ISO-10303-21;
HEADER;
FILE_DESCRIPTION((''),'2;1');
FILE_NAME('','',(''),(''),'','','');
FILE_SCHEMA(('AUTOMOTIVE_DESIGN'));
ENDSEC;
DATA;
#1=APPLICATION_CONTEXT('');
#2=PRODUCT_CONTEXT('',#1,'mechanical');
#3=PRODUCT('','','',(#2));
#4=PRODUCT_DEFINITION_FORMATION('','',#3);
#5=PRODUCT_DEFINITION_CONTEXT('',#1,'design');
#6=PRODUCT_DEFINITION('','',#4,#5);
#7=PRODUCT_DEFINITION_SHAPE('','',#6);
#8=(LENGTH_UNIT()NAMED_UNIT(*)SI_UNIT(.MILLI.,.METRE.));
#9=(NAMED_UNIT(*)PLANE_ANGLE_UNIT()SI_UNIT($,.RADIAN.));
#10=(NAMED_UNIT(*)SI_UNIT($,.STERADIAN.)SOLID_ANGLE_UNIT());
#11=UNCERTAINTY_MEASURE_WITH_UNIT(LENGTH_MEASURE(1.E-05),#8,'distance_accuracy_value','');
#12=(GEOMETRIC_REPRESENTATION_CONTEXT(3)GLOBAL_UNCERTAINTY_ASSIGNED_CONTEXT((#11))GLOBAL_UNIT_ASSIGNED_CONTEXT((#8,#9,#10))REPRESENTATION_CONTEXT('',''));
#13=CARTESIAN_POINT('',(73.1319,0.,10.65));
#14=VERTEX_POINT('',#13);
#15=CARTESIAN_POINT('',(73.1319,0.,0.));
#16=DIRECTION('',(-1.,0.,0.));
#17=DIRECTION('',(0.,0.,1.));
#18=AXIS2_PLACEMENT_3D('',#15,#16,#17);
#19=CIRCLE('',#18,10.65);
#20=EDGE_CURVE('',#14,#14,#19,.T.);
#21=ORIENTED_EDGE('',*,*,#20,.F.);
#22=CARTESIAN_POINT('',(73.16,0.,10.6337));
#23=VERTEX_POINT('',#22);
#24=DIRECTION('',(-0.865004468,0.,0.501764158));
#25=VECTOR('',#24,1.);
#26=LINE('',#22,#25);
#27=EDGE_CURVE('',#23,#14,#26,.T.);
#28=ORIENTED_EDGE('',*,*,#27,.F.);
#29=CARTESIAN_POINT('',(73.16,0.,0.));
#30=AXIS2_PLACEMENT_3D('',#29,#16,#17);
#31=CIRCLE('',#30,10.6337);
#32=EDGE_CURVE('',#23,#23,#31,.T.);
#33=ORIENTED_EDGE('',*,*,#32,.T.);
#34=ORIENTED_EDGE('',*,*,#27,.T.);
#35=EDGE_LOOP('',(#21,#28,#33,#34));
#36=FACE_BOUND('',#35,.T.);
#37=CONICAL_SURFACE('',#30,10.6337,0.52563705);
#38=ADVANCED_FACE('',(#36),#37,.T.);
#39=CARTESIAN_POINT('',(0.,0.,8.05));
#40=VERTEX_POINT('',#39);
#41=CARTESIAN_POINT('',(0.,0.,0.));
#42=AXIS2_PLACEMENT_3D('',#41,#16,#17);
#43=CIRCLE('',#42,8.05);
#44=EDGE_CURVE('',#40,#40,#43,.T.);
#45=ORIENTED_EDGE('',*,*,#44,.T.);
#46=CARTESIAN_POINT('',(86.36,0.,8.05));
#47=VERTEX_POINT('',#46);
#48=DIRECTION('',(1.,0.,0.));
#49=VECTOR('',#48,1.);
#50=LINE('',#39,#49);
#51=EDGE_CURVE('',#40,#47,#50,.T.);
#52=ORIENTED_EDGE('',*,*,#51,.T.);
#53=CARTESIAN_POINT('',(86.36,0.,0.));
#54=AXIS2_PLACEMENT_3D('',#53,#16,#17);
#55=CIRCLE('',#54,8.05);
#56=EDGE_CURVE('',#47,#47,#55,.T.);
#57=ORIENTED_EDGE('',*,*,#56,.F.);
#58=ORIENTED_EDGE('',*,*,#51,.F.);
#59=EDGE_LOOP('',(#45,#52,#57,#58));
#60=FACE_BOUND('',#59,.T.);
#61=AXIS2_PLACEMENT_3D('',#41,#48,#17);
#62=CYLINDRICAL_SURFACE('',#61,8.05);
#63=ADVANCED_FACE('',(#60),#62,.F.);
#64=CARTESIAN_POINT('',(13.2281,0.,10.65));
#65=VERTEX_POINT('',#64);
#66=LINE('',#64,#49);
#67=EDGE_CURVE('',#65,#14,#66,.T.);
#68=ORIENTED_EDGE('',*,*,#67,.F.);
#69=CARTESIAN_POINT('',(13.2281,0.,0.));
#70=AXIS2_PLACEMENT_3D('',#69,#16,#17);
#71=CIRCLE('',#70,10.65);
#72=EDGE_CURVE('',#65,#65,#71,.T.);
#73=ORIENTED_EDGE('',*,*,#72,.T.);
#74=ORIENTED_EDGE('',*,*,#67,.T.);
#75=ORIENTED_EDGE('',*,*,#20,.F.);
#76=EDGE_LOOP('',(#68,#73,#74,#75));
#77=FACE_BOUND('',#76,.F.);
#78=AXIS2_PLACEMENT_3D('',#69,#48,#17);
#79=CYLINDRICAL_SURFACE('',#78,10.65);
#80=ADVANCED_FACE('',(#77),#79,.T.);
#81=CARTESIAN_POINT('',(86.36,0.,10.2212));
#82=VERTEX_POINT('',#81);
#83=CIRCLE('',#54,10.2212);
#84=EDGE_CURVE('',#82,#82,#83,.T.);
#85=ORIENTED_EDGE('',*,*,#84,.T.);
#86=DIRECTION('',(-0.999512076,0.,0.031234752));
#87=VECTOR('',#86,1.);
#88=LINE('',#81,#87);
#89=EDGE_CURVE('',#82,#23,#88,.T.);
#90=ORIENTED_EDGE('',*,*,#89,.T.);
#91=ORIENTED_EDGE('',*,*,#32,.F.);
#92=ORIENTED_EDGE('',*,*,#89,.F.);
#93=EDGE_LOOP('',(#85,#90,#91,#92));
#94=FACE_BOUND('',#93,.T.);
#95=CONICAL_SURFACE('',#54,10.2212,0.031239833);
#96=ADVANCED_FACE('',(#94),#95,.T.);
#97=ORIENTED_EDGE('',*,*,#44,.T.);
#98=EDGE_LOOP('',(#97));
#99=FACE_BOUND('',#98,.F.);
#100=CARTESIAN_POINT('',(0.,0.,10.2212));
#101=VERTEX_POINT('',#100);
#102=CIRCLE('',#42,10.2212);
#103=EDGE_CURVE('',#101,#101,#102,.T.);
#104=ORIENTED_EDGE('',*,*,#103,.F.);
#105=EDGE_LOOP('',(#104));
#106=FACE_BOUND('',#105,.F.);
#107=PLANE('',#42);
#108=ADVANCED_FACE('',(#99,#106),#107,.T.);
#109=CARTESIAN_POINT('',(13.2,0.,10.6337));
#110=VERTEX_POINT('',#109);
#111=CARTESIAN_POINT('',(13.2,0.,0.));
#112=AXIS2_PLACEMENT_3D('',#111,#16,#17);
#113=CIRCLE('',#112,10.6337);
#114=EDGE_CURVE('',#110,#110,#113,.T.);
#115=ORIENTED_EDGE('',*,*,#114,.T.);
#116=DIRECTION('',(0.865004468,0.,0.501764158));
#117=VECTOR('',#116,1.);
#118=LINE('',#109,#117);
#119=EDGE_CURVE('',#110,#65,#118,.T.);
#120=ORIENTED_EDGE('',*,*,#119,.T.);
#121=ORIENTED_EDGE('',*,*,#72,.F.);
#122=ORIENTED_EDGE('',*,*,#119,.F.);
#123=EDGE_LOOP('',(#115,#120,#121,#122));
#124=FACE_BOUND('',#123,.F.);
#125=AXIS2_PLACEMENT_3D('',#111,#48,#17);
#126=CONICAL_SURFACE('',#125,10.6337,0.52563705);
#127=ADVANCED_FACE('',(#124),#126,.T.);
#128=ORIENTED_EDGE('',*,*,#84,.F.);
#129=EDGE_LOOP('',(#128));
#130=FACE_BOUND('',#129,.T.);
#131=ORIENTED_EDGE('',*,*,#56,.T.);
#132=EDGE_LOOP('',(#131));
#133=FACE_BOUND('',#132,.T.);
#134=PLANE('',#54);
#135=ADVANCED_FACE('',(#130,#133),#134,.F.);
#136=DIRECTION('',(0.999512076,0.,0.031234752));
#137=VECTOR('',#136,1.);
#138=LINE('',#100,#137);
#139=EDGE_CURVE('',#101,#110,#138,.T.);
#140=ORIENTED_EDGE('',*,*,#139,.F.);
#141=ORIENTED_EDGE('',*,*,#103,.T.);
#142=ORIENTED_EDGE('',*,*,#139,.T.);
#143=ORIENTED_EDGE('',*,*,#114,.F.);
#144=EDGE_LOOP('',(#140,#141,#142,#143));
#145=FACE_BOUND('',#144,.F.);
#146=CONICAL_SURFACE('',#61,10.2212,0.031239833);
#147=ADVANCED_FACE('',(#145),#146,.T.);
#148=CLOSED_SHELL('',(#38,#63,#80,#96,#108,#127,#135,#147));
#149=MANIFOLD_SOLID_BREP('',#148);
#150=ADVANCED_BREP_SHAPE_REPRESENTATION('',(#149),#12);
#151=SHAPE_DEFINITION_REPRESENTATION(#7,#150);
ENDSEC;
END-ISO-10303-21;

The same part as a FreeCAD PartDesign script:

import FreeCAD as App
import Part
import Sketcher

V = App.Vector
Q = App.Units.Quantity

doc = App.newDocument("Part")
body = doc.addObject("PartDesign::Body", "Body")

sketch1 = body.newObject("Sketcher::SketchObject", "Sketch")
sketch1.AttachmentSupport = (doc.getObject("XZ_Plane"), [""])
sketch1.MapMode = "FlatFace"
sketch1.addGeometry([
    Part.LineSegment(V(86.36, 8.05, 0), V(0, 8.05, 0)),
    Part.LineSegment(V(0, 8.05, 0), V(0, 10.221, 0)),
    Part.LineSegment(V(0, 10.221, 0), V(13.2, 10.634, 0)),
    Part.LineSegment(V(13.2, 10.634, 0), V(13.228, 10.65, 0)),
    Part.LineSegment(V(13.228, 10.65, 0), V(73.132, 10.65, 0)),
    Part.LineSegment(V(73.132, 10.65, 0), V(73.16, 10.634, 0)),
    Part.LineSegment(V(73.16, 10.634, 0), V(86.36, 10.221, 0)),
    Part.LineSegment(V(86.36, 10.221, 0), V(86.36, 8.05, 0)),
], False)
sketch1.addConstraint([
    Sketcher.Constraint("Coincident", 0, 2, 1, 1),
    Sketcher.Constraint("Coincident", 1, 2, 2, 1),
    Sketcher.Constraint("Coincident", 2, 2, 3, 1),
    Sketcher.Constraint("Coincident", 3, 2, 4, 1),
    Sketcher.Constraint("Coincident", 4, 2, 5, 1),
    Sketcher.Constraint("Coincident", 5, 2, 6, 1),
    Sketcher.Constraint("Coincident", 6, 2, 7, 1),
    Sketcher.Constraint("Coincident", 7, 2, 0, 1),
    Sketcher.Constraint("Horizontal", 0),
    Sketcher.Constraint("Vertical", 1),
    Sketcher.Constraint("Horizontal", 4),
    Sketcher.Constraint("Vertical", 7),
    Sketcher.Constraint("PointOnObject", 0, 2, -2),
    Sketcher.Constraint("Horizontal", 2, 2, 5, 2),
    Sketcher.Constraint("Horizontal", 1, 2, 6, 2),
    Sketcher.Constraint("Equal", 3, 5),
    Sketcher.Constraint("Equal", 2, 6),
    Sketcher.Constraint("DistanceX", 0, 2, 0, 1, Q("3.4 in")),
    Sketcher.Constraint("Angle", 2, Q("1.79 deg")),
    Sketcher.Constraint("DistanceX", -1, 1, 2, 2, 13.2),
    Sketcher.Constraint("DistanceY", 0, 2, 3, 2, 2.6),
    Sketcher.Constraint("DistanceX", 4, 1, 4, 2, 59.9038),
    Sketcher.Constraint("DistanceY", 1, 1, 1, 2, 2.1712),
    Sketcher.Constraint("DistanceY", -1, 1, 1, 2, Q("0.4024 in")),
])
revolution = body.newObject("PartDesign::Revolution", "Revolution")
revolution.Profile = sketch1
revolution.ReferenceAxis = (sketch1, ["H_Axis"])
revolution.Angle = 360

doc.recompute()
